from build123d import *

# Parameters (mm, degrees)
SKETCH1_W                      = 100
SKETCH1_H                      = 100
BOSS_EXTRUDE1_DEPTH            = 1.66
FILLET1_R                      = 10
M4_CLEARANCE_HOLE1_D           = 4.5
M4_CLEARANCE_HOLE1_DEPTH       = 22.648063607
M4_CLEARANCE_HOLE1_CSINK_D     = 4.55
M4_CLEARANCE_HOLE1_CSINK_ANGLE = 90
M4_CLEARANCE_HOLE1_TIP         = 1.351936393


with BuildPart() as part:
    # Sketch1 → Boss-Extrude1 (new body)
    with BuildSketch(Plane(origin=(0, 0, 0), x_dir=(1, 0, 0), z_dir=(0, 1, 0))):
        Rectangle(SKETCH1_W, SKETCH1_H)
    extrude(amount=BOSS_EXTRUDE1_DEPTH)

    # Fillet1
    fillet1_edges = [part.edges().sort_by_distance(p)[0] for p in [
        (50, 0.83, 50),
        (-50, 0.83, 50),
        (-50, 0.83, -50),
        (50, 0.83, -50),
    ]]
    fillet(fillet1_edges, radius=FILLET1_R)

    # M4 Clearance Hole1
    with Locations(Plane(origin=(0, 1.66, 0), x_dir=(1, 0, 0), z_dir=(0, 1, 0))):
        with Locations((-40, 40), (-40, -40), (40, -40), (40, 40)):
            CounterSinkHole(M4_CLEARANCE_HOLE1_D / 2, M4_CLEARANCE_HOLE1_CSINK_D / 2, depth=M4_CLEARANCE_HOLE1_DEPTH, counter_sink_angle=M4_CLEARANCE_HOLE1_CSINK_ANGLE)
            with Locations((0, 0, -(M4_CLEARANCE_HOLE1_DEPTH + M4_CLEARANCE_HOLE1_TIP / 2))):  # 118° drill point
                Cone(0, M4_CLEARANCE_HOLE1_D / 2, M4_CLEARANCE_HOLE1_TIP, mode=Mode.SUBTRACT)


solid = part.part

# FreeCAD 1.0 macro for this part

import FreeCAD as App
import Part
import Sketcher

V = App.Vector
Q = App.Units.Quantity


def edges_at(feature, points):
    """Names of the edges that pass closest to the given points."""
    edges = feature.Shape.Edges
    near = lambda p: min(range(len(edges)), key=lambda i: edges[i].distToShape(Part.Vertex(*p))[0])
    return sorted({f"Edge{near(p) + 1}" for p in points})

doc = App.newDocument("Part")
params = doc.addObject("Spreadsheet::Sheet", "Params")
for row, (alias, value) in enumerate([
    ("sketch1_width", "100 mm"),
    ("pad1_length", "1.66 mm"),
    ("fillet_radius", "10 mm"),
    ("sketch2_diameter", "4.5 mm"),
    ("hole_diameter", "4.5 mm"),
    ("hole_depth", "22.648064 mm"),
    ("hole_csink_diameter", "4.55 mm"),
], start=1):
    params.set(f"A{row}", alias)
    params.set(f"B{row}", "=" + value)
    params.setAlias(f"B{row}", alias)

body = doc.addObject("PartDesign::Body", "Body")

# Sketch on XZ plane
sketch1 = doc.addObject("Sketcher::SketchObject", "Sketch")
body.addObject(sketch1)
sketch1.AttachmentSupport = (doc.XZ_Plane, [""])
sketch1.MapMode = "FlatFace"
sketch1.addGeometry([
    Part.LineSegment(V(-50, -50, 0), V(-50, 50, 0)),
    Part.LineSegment(V(-50, 50, 0), V(50, 50, 0)),
    Part.LineSegment(V(50, 50, 0), V(50, -50, 0)),
    Part.LineSegment(V(50, -50, 0), V(-50, -50, 0)),
], False)
sketch1.addConstraint([
    Sketcher.Constraint("Coincident", 0, 2, 1, 1),
    Sketcher.Constraint("Coincident", 1, 2, 2, 1),
    Sketcher.Constraint("Coincident", 2, 2, 3, 1),
    Sketcher.Constraint("Coincident", 3, 2, 0, 1),
    Sketcher.Constraint("Vertical", 0),
    Sketcher.Constraint("Horizontal", 1),
    Sketcher.Constraint("Vertical", 2),
    Sketcher.Constraint("Horizontal", 3),
    Sketcher.Constraint("Symmetric", 0, 2, 2, 2, -1, 1),
    Sketcher.Constraint("Equal", 3, 0),
    Sketcher.Constraint("DistanceX", 1, 1, 1, 2, Q("100 mm")),
])
sketch1.setExpression("Constraints[10]", "Params.sketch1_width")
pad1 = doc.addObject("PartDesign::Pad", "Pad")
body.addObject(pad1)
pad1.Profile = sketch1
pad1.setExpression("Length", "Params.pad1_length")
pad1.Reversed = True
doc.recompute()

fillet = doc.addObject("PartDesign::Fillet", "Fillet")
body.addObject(fillet)
fillet.Base = (pad1, edges_at(pad1, [
    (50, 0.83, 50),
    (-50, 0.83, 50),
    (-50, 0.83, -50),
    (50, 0.83, -50),
]))
fillet.setExpression("Radius", "Params.fillet_radius")

# Sketch on XZ plane
sketch2 = doc.addObject("Sketcher::SketchObject", "Sketch001")
body.addObject(sketch2)
sketch2.AttachmentSupport = (doc.XZ_Plane, [""])
sketch2.MapMode = "FlatFace"
sketch2.AttachmentOffset = App.Placement(V(0, 0, -1.66), App.Rotation())
sketch2.addGeometry([
    Part.Circle(V(-40, -40, 0), V(0, 0, 1), 2.2),
    Part.Circle(V(-40, 40, 0), V(0, 0, 1), 2.2),
    Part.Circle(V(40, 40, 0), V(0, 0, 1), 2.2),
    Part.Circle(V(40, -40, 0), V(0, 0, 1), 2.2),
], False)
sketch2.addConstraint([
    Sketcher.Constraint("Equal", 0, 1),
    Sketcher.Constraint("Equal", 1, 2),
    Sketcher.Constraint("Equal", 2, 3),
    Sketcher.Constraint("Symmetric", 0, 3, 2, 3, -1, 1),
    Sketcher.Constraint("Symmetric", 1, 3, 3, 3, -1, 1),
    Sketcher.Constraint("Symmetric", 1, 3, 2, 3, -2),
    Sketcher.Constraint("Diameter", 0, Q("4.5 mm")),
    Sketcher.Constraint("DistanceX", 0, 3, -1, 1, Q("40 mm")),
    Sketcher.Constraint("DistanceY", 0, 3, -1, 1, Q("40 mm")),
])
sketch2.setExpression("Constraints[6]", "Params.sketch2_diameter")
doc.recompute()
hole = doc.addObject("PartDesign::Hole", "Hole")
body.addObject(hole)
hole.Profile = sketch2
hole.ThreadType = "None"
hole.setExpression("Diameter", "Params.hole_diameter")
hole.DepthType = "Dimension"
hole.setExpression("Depth", "Params.hole_depth")
hole.DrillPoint = "Angled"
hole.DrillPointAngle = 118
hole.HoleCutType = "Countersink"
hole.setExpression("HoleCutDiameter", "Params.hole_csink_diameter")
hole.HoleCutCountersinkAngle = 90
hole.Reversed = True

doc.recompute()
